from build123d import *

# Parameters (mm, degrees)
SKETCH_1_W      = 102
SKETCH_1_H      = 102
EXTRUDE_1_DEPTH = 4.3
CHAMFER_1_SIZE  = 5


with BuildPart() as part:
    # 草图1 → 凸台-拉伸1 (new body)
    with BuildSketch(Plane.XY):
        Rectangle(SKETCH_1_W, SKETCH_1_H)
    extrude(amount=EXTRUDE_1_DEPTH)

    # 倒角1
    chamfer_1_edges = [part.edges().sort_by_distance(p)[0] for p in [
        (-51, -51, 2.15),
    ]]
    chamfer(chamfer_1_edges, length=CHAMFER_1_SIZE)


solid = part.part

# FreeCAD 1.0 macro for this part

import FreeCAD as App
import Part
import Sketcher
from FreeCAD import Vector


def edges_at(feature, points):
    """Names of the edges that pass closest to the given points."""
    edges = feature.Shape.Edges
    near = lambda p: min(range(len(edges)), key=lambda i: edges[i].distToShape(Part.Vertex(*p))[0])
    return sorted({f"Edge{near(p) + 1}" for p in points})

doc = App.newDocument("Part")
body = doc.addObject("PartDesign::Body", "Body")

# Sketch on XY plane
sketch1 = body.newObject("Sketcher::SketchObject", "Sketch")
sketch1.AttachmentSupport = (doc.getObject("XY_Plane"), [""])
sketch1.MapMode = "FlatFace"
sketch1.addGeometry(Part.LineSegment(Vector(-51, 51, 0), Vector(-51, -51, 0)), False)
sketch1.addGeometry(Part.LineSegment(Vector(-51, -51, 0), Vector(51, -51, 0)), False)
sketch1.addGeometry(Part.LineSegment(Vector(51, -51, 0), Vector(51, 51, 0)), False)
sketch1.addGeometry(Part.LineSegment(Vector(51, 51, 0), Vector(-51, 51, 0)), False)
sketch1.addConstraint(Sketcher.Constraint("Coincident", 0, 2, 1, 1))
sketch1.addConstraint(Sketcher.Constraint("Coincident", 1, 2, 2, 1))
sketch1.addConstraint(Sketcher.Constraint("Coincident", 2, 2, 3, 1))
sketch1.addConstraint(Sketcher.Constraint("Coincident", 3, 2, 0, 1))
sketch1.addConstraint(Sketcher.Constraint("Vertical", 0))
sketch1.addConstraint(Sketcher.Constraint("Horizontal", 1))
sketch1.addConstraint(Sketcher.Constraint("Vertical", 2))
sketch1.addConstraint(Sketcher.Constraint("Horizontal", 3))
sketch1.addConstraint(Sketcher.Constraint("Symmetric", 0, 2, 2, 2, -1, 1))
sketch1.addConstraint(Sketcher.Constraint("Equal", 3, 0))
sketch1.addConstraint(Sketcher.Constraint("DistanceX", 1, 1, 1, 2, 102.0))
pad1 = body.newObject("PartDesign::Pad", "Pad")
pad1.Profile = sketch1
pad1.Length = 4.3
doc.recompute()

chamfer = body.newObject("PartDesign::Chamfer", "Chamfer")
chamfer.Base = (pad1, edges_at(pad1, [(-51, -51, 2.15)]))
chamfer.Size = 5

doc.recompute()
